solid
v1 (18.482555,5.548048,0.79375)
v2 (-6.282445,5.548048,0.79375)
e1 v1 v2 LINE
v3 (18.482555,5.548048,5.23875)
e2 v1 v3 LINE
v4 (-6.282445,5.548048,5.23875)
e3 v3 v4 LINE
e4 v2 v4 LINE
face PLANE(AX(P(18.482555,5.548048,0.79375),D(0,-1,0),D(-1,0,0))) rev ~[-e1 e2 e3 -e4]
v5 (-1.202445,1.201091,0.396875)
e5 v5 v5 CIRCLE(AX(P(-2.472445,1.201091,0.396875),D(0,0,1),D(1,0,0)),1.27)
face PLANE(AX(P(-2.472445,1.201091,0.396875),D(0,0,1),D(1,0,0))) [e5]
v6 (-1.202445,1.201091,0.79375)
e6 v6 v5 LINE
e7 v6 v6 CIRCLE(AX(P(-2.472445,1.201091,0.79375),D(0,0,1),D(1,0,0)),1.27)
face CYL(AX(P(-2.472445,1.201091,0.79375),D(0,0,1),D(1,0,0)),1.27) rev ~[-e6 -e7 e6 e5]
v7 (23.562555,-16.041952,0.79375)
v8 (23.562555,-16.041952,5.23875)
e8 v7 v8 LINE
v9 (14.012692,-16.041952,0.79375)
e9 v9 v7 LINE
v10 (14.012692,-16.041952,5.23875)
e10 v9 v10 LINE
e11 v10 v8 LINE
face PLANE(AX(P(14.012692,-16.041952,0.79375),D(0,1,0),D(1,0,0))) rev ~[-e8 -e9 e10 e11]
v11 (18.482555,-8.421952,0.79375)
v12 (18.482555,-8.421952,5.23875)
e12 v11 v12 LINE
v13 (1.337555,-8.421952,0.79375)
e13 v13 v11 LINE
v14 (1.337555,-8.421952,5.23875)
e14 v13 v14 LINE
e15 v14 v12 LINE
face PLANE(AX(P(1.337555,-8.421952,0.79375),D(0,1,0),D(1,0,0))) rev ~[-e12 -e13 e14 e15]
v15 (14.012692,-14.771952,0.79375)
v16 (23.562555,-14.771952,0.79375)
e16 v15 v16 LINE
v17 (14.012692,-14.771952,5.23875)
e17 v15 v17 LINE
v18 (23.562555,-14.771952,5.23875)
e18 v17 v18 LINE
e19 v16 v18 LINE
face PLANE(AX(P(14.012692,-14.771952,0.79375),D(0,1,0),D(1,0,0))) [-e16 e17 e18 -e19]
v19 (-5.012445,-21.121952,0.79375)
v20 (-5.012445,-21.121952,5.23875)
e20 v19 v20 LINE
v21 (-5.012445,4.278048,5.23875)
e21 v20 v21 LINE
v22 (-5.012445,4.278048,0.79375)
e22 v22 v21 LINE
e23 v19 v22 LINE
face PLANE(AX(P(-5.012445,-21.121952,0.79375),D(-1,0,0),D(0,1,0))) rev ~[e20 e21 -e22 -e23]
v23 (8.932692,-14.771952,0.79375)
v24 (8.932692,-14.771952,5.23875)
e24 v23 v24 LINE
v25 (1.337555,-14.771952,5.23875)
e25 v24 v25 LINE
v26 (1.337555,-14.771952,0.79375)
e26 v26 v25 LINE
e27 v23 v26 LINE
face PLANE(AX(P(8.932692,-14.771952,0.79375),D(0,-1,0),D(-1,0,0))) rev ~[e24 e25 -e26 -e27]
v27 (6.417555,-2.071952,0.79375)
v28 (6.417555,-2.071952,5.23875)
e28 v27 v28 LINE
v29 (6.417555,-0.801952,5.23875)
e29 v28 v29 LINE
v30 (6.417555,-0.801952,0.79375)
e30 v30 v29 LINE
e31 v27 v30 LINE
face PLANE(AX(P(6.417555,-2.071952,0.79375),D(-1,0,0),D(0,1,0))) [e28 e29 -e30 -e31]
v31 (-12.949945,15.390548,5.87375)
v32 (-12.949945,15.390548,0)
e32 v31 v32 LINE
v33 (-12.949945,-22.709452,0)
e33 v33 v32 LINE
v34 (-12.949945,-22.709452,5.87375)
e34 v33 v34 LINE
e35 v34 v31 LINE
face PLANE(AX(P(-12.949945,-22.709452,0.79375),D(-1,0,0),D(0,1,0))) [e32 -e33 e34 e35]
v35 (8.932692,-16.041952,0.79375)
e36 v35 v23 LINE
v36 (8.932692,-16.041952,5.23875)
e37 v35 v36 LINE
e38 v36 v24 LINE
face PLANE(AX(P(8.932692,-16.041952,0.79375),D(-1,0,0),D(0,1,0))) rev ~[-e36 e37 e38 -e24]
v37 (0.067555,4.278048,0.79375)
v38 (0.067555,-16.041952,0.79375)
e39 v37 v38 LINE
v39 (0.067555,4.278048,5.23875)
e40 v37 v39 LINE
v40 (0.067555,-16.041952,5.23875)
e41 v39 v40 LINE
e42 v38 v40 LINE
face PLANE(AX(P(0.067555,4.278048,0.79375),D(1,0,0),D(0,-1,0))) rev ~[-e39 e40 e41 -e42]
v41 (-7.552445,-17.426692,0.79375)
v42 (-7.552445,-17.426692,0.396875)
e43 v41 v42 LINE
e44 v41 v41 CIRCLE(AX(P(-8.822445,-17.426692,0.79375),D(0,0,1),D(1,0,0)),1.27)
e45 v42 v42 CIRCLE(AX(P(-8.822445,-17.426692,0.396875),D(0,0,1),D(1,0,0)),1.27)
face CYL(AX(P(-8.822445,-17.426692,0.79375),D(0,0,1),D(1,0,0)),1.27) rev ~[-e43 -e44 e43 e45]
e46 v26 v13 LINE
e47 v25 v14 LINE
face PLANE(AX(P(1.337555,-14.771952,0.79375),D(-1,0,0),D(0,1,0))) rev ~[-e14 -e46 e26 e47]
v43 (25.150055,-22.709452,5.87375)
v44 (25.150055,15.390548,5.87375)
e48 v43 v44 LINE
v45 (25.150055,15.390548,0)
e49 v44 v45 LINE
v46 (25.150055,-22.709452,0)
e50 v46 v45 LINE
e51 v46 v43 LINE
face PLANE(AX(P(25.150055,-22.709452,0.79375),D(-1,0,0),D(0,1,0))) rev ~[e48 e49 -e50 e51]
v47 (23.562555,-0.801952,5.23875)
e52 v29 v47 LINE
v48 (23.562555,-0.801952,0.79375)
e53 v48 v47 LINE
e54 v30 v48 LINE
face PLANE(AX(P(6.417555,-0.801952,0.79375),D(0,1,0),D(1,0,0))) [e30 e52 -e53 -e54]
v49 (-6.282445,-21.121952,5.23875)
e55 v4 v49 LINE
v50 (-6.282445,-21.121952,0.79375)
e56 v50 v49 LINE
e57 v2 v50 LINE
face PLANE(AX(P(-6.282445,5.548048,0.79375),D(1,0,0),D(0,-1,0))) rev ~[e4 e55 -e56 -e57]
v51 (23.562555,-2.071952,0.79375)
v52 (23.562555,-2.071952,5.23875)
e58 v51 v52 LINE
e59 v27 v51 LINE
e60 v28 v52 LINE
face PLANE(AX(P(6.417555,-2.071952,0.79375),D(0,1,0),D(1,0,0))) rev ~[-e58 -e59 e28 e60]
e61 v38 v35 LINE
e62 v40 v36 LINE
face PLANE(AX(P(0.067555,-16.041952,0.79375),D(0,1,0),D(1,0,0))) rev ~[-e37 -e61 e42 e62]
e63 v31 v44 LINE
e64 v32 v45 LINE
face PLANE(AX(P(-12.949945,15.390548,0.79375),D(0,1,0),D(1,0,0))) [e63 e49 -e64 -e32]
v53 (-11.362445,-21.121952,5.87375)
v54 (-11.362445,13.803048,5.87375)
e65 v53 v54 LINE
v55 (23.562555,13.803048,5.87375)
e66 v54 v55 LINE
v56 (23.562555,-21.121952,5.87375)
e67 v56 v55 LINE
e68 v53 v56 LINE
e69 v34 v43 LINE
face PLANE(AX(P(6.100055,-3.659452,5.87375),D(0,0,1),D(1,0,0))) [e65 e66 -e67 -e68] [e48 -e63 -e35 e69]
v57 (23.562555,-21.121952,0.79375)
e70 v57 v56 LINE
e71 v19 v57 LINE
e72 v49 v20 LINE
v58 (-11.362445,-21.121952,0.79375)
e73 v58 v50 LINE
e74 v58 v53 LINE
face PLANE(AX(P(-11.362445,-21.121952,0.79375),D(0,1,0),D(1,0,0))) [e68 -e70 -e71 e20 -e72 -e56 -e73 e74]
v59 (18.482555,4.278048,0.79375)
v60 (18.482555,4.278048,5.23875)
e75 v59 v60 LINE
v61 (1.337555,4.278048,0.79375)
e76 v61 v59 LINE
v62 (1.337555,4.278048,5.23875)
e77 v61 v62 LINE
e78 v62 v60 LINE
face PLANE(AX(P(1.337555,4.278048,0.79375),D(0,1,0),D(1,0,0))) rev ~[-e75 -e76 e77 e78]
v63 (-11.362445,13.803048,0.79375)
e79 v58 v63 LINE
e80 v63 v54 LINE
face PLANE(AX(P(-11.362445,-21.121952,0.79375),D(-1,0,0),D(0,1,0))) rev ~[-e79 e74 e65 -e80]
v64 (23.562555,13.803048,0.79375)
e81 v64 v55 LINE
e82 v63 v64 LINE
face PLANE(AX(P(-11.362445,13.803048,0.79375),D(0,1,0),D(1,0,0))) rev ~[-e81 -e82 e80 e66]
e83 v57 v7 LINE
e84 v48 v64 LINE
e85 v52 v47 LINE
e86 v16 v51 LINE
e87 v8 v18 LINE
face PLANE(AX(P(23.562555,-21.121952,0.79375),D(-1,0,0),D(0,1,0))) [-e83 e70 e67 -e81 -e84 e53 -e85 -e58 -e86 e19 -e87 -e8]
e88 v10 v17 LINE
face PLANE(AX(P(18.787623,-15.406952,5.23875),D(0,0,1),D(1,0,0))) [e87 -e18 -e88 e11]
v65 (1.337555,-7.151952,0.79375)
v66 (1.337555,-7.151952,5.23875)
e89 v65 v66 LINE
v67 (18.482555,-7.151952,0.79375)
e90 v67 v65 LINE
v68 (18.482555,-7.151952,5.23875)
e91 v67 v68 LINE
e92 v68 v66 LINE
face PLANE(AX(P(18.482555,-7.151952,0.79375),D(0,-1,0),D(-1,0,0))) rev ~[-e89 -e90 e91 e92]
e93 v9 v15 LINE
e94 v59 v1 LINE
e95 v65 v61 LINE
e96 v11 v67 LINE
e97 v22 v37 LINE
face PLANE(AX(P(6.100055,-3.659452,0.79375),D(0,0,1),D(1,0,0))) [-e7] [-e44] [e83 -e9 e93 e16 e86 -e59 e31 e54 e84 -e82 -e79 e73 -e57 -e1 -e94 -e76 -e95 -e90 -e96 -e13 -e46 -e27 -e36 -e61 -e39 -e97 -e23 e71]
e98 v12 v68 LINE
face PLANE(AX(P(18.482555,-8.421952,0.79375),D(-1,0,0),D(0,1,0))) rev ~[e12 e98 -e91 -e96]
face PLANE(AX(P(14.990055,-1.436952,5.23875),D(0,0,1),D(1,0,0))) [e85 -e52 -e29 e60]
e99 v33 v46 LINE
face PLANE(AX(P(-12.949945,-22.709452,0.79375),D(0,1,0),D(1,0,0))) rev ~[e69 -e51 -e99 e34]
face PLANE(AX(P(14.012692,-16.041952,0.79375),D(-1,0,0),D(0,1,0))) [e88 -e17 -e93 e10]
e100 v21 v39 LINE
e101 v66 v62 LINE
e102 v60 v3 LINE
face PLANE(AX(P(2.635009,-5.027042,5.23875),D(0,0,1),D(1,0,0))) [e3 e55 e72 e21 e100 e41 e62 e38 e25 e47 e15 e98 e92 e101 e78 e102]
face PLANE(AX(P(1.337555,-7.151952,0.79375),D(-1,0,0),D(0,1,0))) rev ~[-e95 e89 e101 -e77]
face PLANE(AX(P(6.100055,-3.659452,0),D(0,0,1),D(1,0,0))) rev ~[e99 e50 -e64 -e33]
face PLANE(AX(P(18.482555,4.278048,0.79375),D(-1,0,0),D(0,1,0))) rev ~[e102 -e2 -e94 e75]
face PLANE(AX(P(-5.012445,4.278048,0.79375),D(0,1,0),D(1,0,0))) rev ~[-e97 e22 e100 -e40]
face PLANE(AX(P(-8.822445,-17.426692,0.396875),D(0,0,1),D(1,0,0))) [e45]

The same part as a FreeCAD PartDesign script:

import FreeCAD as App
import Part
import Sketcher
from FreeCAD import Vector
Q = App.Units.Quantity

doc = App.newDocument("Part")
body = doc.addObject("PartDesign::Body", "Body")

# Sketch on XY plane
sketch1 = body.newObject("Sketcher::SketchObject", "Sketch")
sketch1.AttachmentSupport = (doc.getObject("XY_Plane"), [""])
sketch1.MapMode = "FlatFace"
sketch1.addGeometry([
    Part.LineSegment(Vector(-12.949945, 15.390548, 0), Vector(-12.949945, -22.709452, 0)),
    Part.LineSegment(Vector(-12.949945, -22.709452, 0), Vector(25.150055, -22.709452, 0)),
    Part.LineSegment(Vector(25.150055, -22.709452, 0), Vector(25.150055, 15.390548, 0)),
    Part.LineSegment(Vector(25.150055, 15.390548, 0), Vector(-12.949945, 15.390548, 0)),
], False)
sketch1.addConstraint([
    Sketcher.Constraint("Coincident", 0, 2, 1, 1),
    Sketcher.Constraint("Coincident", 1, 2, 2, 1),
    Sketcher.Constraint("Coincident", 2, 2, 3, 1),
    Sketcher.Constraint("Coincident", 3, 2, 0, 1),
    Sketcher.Constraint("Vertical", 0),
    Sketcher.Constraint("Horizontal", 1),
    Sketcher.Constraint("Vertical", 2),
    Sketcher.Constraint("Horizontal", 3),
    Sketcher.Constraint("Equal", 3, 0),
    Sketcher.Constraint("DistanceX", 1, 1, 1, 2, Q("1.5 in")),
    Sketcher.Constraint("DistanceX", 0, 2, -1, 1, 12.949945),
    Sketcher.Constraint("DistanceY", 0, 2, -1, 1, 22.709452),
])
pad1 = body.newObject("PartDesign::Pad", "Pad")
pad1.Profile = sketch1
pad1.Length = Q("0.03125 in")

# Sketch on XY plane
sketch2 = body.newObject("Sketcher::SketchObject", "Sketch001")
sketch2.AttachmentSupport = (doc.getObject("XY_Plane"), [""])
sketch2.MapMode = "FlatFace"
sketch2.AttachmentOffset = App.Placement(Vector(0, 0, 0.03125 * 25.4), App.Rotation())
sketch2.addGeometry([
    Part.LineSegment(Vector(-12.949945, 15.390548, 0), Vector(-12.949945, -22.709452, 0)),  # 0
    Part.LineSegment(Vector(-12.949945, -22.709452, 0), Vector(25.150055, -22.709452, 0)),  # 1
    Part.LineSegment(Vector(25.150055, -22.709452, 0), Vector(25.150055, 15.390548, 0)),  # 2
    Part.LineSegment(Vector(25.150055, 15.390548, 0), Vector(-12.949945, 15.390548, 0)),  # 3
    Part.LineSegment(Vector(23.562555, -21.121952, 0), Vector(-11.362445, -21.121952, 0)),  # 4
    Part.LineSegment(Vector(-11.362445, -21.121952, 0), Vector(-11.362445, 13.803048, 0)),  # 5
    Part.LineSegment(Vector(-11.362445, 13.803048, 0), Vector(23.562555, 13.803048, 0)),  # 6
    Part.LineSegment(Vector(23.562555, 13.803048, 0), Vector(23.562555, -21.121952, 0)),  # 7
], False)
sketch2.addConstraint([
    Sketcher.Constraint("Coincident", 0, 2, 1, 1),
    Sketcher.Constraint("Coincident", 1, 2, 2, 1),
    Sketcher.Constraint("Coincident", 2, 2, 3, 1),
    Sketcher.Constraint("Coincident", 3, 2, 0, 1),
    Sketcher.Constraint("Coincident", 4, 2, 5, 1),
    Sketcher.Constraint("Coincident", 5, 2, 6, 1),
    Sketcher.Constraint("Coincident", 6, 2, 7, 1),
    Sketcher.Constraint("Coincident", 7, 2, 4, 1),
    Sketcher.Constraint("Vertical", 0),
    Sketcher.Constraint("Horizontal", 1),
    Sketcher.Constraint("Vertical", 2),
    Sketcher.Constraint("Horizontal", 3),
    Sketcher.Constraint("Horizontal", 4),
    Sketcher.Constraint("Vertical", 5),
    Sketcher.Constraint("Horizontal", 6),
    Sketcher.Constraint("Vertical", 7),
    Sketcher.Constraint("Equal", 3, 0),
    Sketcher.Constraint("Equal", 6, 5),
    Sketcher.Constraint("DistanceX", 1, 1, 1, 2, Q("1.5 in")),
    Sketcher.Constraint("DistanceX", 4, 2, 4, 1, Q("1.375 in")),
    Sketcher.Constraint("DistanceX", 0, 2, 4, 2, Q("0.0625 in")),
    Sketcher.Constraint("DistanceY", 0, 2, 4, 2, Q("0.0625 in")),
    Sketcher.Constraint("DistanceX", 0, 2, -1, 1, 12.949945),
    Sketcher.Constraint("DistanceY", 0, 2, -1, 1, 22.709452),
])
pad2 = body.newObject("PartDesign::Pad", "Pad001")
pad2.Profile = sketch2
pad2.Length = Q("0.2 in")

# Sketch on XY plane
sketch3 = body.newObject("Sketcher::SketchObject", "Sketch002")
sketch3.AttachmentSupport = (doc.getObject("XY_Plane"), [""])
sketch3.MapMode = "FlatFace"
sketch3.AttachmentOffset = App.Placement(Vector(0, 0, 0.03125 * 25.4), App.Rotation())
sketch3.addGeometry([
    Part.LineSegment(Vector(-6.282445, 5.548048, 0), Vector(-6.282445, -21.121952, 0)),  # 0
    Part.LineSegment(Vector(-6.282445, -21.121952, 0), Vector(-5.012445, -21.121952, 0)),  # 1
    Part.LineSegment(Vector(-5.012445, -21.121952, 0), Vector(-5.012445, 4.278048, 0)),  # 2
    Part.LineSegment(Vector(-5.012445, 4.278048, 0), Vector(0.067555, 4.278048, 0)),  # 3
    Part.LineSegment(Vector(0.067555, 4.278048, 0), Vector(0.067555, -16.041952, 0)),  # 4
    Part.LineSegment(Vector(0.067555, -16.041952, 0), Vector(8.932692, -16.041952, 0)),  # 5
    Part.LineSegment(Vector(8.932692, -16.041952, 0), Vector(8.932692, -14.771952, 0)),  # 6
    Part.LineSegment(Vector(8.932692, -14.771952, 0), Vector(1.337555, -14.771952, 0)),  # 7
    Part.LineSegment(Vector(1.337555, -14.771952, 0), Vector(1.337555, -8.421952, 0)),  # 8
    Part.LineSegment(Vector(1.337555, -8.421952, 0), Vector(18.482555, -8.421952, 0)),  # 9
    Part.LineSegment(Vector(18.482555, -8.421952, 0), Vector(18.482555, -7.151952, 0)),  # 10
    Part.LineSegment(Vector(18.482555, -7.151952, 0), Vector(1.337555, -7.151952, 0)),  # 11
    Part.LineSegment(Vector(1.337555, -7.151952, 0), Vector(1.337555, 4.278048, 0)),  # 12
    Part.LineSegment(Vector(1.337555, 4.278048, 0), Vector(18.482555, 4.278048, 0)),  # 13
    Part.LineSegment(Vector(18.482555, 4.278048, 0), Vector(18.482555, 5.548048, 0)),  # 14
    Part.LineSegment(Vector(18.482555, 5.548048, 0), Vector(-6.282445, 5.548048, 0)),  # 15
    Part.LineSegment(Vector(6.417555, -0.801952, 0), Vector(6.417555, -2.071952, 0)),  # 16
    Part.LineSegment(Vector(6.417555, -2.071952, 0), Vector(23.562555, -2.071952, 0)),  # 17
    Part.LineSegment(Vector(23.562555, -2.071952, 0), Vector(23.562555, -0.801952, 0)),  # 18
    Part.LineSegment(Vector(23.562555, -0.801952, 0), Vector(6.417555, -0.801952, 0)),  # 19
    Part.LineSegment(Vector(14.012692, -14.771952, 0), Vector(14.012692, -16.041952, 0)),  # 20
    Part.LineSegment(Vector(14.012692, -16.041952, 0), Vector(23.562555, -16.041952, 0)),  # 21
    Part.LineSegment(Vector(23.562555, -16.041952, 0), Vector(23.562555, -14.771952, 0)),  # 22
    Part.LineSegment(Vector(23.562555, -14.771952, 0), Vector(14.012692, -14.771952, 0)),  # 23
], False)
sketch3.addConstraint([
    Sketcher.Constraint("Coincident", 0, 2, 1, 1),
    Sketcher.Constraint("Coincident", 1, 2, 2, 1),
    Sketcher.Constraint("Coincident", 2, 2, 3, 1),
    Sketcher.Constraint("Coincident", 3, 2, 4, 1),
    Sketcher.Constraint("Coincident", 4, 2, 5, 1),
    Sketcher.Constraint("Coincident", 5, 2, 6, 1),
    Sketcher.Constraint("Coincident", 6, 2, 7, 1),
    Sketcher.Constraint("Coincident", 7, 2, 8, 1),
    Sketcher.Constraint("Coincident", 8, 2, 9, 1),
    Sketcher.Constraint("Coincident", 9, 2, 10, 1),
    Sketcher.Constraint("Coincident", 10, 2, 11, 1),
    Sketcher.Constraint("Coincident", 11, 2, 12, 1),
    Sketcher.Constraint("Coincident", 12, 2, 13, 1),
    Sketcher.Constraint("Coincident", 13, 2, 14, 1),
    Sketcher.Constraint("Coincident", 14, 2, 15, 1),
    Sketcher.Constraint("Coincident", 15, 2, 0, 1),
    Sketcher.Constraint("Coincident", 16, 2, 17, 1),
    Sketcher.Constraint("Coincident", 17, 2, 18, 1),
    Sketcher.Constraint("Coincident", 18, 2, 19, 1),
    Sketcher.Constraint("Coincident", 19, 2, 16, 1),
    Sketcher.Constraint("Coincident", 20, 2, 21, 1),
    Sketcher.Constraint("Coincident", 21, 2, 22, 1),
    Sketcher.Constraint("Coincident", 22, 2, 23, 1),
    Sketcher.Constraint("Coincident", 23, 2, 20, 1),
    Sketcher.Constraint("Vertical", 0),
    Sketcher.Constraint("Horizontal", 1),
    Sketcher.Constraint("Vertical", 2),
    Sketcher.Constraint("Horizontal", 3),
    Sketcher.Constraint("Vertical", 4),
    Sketcher.Constraint("Horizontal", 5),
    Sketcher.Constraint("Vertical", 6),
    Sketcher.Constraint("Horizontal", 7),
    Sketcher.Constraint("Vertical", 8),
    Sketcher.Constraint("Horizontal", 9),
    Sketcher.Constraint("Vertical", 10),
    Sketcher.Constraint("Horizontal", 11),
    Sketcher.Constraint("Vertical", 12),
    Sketcher.Constraint("Horizontal", 13),
    Sketcher.Constraint("Vertical", 14),
    Sketcher.Constraint("Horizontal", 15),
    Sketcher.Constraint("Vertical", 16),
    Sketcher.Constraint("Horizontal", 17),
    Sketcher.Constraint("Vertical", 18),
    Sketcher.Constraint("Horizontal", 19),
    Sketcher.Constraint("Vertical", 20),
    Sketcher.Constraint("Horizontal", 21),
    Sketcher.Constraint("Vertical", 22),
    Sketcher.Constraint("Horizontal", 23),
    Sketcher.Constraint("Horizontal", 3, 2, 12, 2),
    Sketcher.Constraint("Horizontal", 5, 2, 20, 2),
    Sketcher.Constraint("Horizontal", 7, 2, 22, 2),
    Sketcher.Constraint("Vertical", 8, 2, 11, 2),
    Sketcher.Constraint("Vertical", 10, 2, 13, 2),
    Sketcher.Constraint("Vertical", 18, 2, 21, 2),
    Sketcher.Constraint("Equal", 13, 17),
    Sketcher.Constraint("Equal", 1, 6),
    Sketcher.Constraint("Equal", 6, 10),
    Sketcher.Constraint("Equal", 10, 14),
    Sketcher.Constraint("Equal", 14, 16),
    Sketcher.Constraint("DistanceY", 2, 1, 2, 2, Q("1 in")),
    Sketcher.Constraint("DistanceX", 3, 1, 3, 2, Q("0.2 in")),
    Sketcher.Constraint("DistanceY", 4, 2, 4, 1, Q("0.8 in")),
    Sketcher.Constraint("DistanceX", 1, 1, 1, 2, Q("0.05 in")),
    Sketcher.Constraint("DistanceY", 8, 1, 8, 2, Q("0.25 in")),
    Sketcher.Constraint("DistanceX", 0, 2, 7, 2, Q("0.3 in")),
    Sketcher.Constraint("DistanceX", 11, 2, 16, 2, Q("0.2 in")),
    Sketcher.Constraint("DistanceY", 11, 2, 16, 2, Q("0.2 in")),
    Sketcher.Constraint("DistanceX", 5, 2, 20, 2, Q("0.2 in")),
    Sketcher.Constraint("DistanceX", 9, 1, 9, 2, Q("0.675 in")),
    Sketcher.Constraint("DistanceX", 5, 1, 5, 2, 8.865137),
    Sketcher.Constraint("DistanceX", -1, 1, 5, 2, 8.932692),
    Sketcher.Constraint("DistanceY", 0, 2, -1, 1, 21.121952),
])
pad3 = body.newObject("PartDesign::Pad", "Pad002")
pad3.Profile = sketch3
pad3.Length = Q("0.175 in")

# Sketch on XY plane
sketch4 = body.newObject("Sketcher::SketchObject", "Sketch003")
sketch4.AttachmentSupport = (doc.getObject("XY_Plane"), [""])
sketch4.MapMode = "FlatFace"
sketch4.AttachmentOffset = App.Placement(Vector(0, 0, 0.03125 * 25.4), App.Rotation())
sketch4.addGeometry([
    Part.Circle(Vector(-8.822445, -17.426692, 0), Vector(0, 0, 1), 1.27),
    Part.Circle(Vector(-2.472445, 1.201091, 0), Vector(0, 0, 1), 1.27),
], False)
sketch4.addConstraint([
    Sketcher.Constraint("Equal", 0, 1),
    Sketcher.Constraint("Diameter", 0, Q("0.1 in")),
    Sketcher.Constraint("DistanceX", 0, 3, 1, 3, Q("0.25 in")),
    Sketcher.Constraint("DistanceY", 0, 3, -1, 1, 17.426692),
    Sketcher.Constraint("DistanceY", -1, 1, 1, 3, 1.201091),
    Sketcher.Constraint("DistanceX", 0, 3, -1, 1, 8.822445),
])
pocket1 = body.newObject("PartDesign::Pocket", "Pocket")
pocket1.Profile = sketch4
pocket1.Length = Q("0.015625 in")

doc.recompute()
